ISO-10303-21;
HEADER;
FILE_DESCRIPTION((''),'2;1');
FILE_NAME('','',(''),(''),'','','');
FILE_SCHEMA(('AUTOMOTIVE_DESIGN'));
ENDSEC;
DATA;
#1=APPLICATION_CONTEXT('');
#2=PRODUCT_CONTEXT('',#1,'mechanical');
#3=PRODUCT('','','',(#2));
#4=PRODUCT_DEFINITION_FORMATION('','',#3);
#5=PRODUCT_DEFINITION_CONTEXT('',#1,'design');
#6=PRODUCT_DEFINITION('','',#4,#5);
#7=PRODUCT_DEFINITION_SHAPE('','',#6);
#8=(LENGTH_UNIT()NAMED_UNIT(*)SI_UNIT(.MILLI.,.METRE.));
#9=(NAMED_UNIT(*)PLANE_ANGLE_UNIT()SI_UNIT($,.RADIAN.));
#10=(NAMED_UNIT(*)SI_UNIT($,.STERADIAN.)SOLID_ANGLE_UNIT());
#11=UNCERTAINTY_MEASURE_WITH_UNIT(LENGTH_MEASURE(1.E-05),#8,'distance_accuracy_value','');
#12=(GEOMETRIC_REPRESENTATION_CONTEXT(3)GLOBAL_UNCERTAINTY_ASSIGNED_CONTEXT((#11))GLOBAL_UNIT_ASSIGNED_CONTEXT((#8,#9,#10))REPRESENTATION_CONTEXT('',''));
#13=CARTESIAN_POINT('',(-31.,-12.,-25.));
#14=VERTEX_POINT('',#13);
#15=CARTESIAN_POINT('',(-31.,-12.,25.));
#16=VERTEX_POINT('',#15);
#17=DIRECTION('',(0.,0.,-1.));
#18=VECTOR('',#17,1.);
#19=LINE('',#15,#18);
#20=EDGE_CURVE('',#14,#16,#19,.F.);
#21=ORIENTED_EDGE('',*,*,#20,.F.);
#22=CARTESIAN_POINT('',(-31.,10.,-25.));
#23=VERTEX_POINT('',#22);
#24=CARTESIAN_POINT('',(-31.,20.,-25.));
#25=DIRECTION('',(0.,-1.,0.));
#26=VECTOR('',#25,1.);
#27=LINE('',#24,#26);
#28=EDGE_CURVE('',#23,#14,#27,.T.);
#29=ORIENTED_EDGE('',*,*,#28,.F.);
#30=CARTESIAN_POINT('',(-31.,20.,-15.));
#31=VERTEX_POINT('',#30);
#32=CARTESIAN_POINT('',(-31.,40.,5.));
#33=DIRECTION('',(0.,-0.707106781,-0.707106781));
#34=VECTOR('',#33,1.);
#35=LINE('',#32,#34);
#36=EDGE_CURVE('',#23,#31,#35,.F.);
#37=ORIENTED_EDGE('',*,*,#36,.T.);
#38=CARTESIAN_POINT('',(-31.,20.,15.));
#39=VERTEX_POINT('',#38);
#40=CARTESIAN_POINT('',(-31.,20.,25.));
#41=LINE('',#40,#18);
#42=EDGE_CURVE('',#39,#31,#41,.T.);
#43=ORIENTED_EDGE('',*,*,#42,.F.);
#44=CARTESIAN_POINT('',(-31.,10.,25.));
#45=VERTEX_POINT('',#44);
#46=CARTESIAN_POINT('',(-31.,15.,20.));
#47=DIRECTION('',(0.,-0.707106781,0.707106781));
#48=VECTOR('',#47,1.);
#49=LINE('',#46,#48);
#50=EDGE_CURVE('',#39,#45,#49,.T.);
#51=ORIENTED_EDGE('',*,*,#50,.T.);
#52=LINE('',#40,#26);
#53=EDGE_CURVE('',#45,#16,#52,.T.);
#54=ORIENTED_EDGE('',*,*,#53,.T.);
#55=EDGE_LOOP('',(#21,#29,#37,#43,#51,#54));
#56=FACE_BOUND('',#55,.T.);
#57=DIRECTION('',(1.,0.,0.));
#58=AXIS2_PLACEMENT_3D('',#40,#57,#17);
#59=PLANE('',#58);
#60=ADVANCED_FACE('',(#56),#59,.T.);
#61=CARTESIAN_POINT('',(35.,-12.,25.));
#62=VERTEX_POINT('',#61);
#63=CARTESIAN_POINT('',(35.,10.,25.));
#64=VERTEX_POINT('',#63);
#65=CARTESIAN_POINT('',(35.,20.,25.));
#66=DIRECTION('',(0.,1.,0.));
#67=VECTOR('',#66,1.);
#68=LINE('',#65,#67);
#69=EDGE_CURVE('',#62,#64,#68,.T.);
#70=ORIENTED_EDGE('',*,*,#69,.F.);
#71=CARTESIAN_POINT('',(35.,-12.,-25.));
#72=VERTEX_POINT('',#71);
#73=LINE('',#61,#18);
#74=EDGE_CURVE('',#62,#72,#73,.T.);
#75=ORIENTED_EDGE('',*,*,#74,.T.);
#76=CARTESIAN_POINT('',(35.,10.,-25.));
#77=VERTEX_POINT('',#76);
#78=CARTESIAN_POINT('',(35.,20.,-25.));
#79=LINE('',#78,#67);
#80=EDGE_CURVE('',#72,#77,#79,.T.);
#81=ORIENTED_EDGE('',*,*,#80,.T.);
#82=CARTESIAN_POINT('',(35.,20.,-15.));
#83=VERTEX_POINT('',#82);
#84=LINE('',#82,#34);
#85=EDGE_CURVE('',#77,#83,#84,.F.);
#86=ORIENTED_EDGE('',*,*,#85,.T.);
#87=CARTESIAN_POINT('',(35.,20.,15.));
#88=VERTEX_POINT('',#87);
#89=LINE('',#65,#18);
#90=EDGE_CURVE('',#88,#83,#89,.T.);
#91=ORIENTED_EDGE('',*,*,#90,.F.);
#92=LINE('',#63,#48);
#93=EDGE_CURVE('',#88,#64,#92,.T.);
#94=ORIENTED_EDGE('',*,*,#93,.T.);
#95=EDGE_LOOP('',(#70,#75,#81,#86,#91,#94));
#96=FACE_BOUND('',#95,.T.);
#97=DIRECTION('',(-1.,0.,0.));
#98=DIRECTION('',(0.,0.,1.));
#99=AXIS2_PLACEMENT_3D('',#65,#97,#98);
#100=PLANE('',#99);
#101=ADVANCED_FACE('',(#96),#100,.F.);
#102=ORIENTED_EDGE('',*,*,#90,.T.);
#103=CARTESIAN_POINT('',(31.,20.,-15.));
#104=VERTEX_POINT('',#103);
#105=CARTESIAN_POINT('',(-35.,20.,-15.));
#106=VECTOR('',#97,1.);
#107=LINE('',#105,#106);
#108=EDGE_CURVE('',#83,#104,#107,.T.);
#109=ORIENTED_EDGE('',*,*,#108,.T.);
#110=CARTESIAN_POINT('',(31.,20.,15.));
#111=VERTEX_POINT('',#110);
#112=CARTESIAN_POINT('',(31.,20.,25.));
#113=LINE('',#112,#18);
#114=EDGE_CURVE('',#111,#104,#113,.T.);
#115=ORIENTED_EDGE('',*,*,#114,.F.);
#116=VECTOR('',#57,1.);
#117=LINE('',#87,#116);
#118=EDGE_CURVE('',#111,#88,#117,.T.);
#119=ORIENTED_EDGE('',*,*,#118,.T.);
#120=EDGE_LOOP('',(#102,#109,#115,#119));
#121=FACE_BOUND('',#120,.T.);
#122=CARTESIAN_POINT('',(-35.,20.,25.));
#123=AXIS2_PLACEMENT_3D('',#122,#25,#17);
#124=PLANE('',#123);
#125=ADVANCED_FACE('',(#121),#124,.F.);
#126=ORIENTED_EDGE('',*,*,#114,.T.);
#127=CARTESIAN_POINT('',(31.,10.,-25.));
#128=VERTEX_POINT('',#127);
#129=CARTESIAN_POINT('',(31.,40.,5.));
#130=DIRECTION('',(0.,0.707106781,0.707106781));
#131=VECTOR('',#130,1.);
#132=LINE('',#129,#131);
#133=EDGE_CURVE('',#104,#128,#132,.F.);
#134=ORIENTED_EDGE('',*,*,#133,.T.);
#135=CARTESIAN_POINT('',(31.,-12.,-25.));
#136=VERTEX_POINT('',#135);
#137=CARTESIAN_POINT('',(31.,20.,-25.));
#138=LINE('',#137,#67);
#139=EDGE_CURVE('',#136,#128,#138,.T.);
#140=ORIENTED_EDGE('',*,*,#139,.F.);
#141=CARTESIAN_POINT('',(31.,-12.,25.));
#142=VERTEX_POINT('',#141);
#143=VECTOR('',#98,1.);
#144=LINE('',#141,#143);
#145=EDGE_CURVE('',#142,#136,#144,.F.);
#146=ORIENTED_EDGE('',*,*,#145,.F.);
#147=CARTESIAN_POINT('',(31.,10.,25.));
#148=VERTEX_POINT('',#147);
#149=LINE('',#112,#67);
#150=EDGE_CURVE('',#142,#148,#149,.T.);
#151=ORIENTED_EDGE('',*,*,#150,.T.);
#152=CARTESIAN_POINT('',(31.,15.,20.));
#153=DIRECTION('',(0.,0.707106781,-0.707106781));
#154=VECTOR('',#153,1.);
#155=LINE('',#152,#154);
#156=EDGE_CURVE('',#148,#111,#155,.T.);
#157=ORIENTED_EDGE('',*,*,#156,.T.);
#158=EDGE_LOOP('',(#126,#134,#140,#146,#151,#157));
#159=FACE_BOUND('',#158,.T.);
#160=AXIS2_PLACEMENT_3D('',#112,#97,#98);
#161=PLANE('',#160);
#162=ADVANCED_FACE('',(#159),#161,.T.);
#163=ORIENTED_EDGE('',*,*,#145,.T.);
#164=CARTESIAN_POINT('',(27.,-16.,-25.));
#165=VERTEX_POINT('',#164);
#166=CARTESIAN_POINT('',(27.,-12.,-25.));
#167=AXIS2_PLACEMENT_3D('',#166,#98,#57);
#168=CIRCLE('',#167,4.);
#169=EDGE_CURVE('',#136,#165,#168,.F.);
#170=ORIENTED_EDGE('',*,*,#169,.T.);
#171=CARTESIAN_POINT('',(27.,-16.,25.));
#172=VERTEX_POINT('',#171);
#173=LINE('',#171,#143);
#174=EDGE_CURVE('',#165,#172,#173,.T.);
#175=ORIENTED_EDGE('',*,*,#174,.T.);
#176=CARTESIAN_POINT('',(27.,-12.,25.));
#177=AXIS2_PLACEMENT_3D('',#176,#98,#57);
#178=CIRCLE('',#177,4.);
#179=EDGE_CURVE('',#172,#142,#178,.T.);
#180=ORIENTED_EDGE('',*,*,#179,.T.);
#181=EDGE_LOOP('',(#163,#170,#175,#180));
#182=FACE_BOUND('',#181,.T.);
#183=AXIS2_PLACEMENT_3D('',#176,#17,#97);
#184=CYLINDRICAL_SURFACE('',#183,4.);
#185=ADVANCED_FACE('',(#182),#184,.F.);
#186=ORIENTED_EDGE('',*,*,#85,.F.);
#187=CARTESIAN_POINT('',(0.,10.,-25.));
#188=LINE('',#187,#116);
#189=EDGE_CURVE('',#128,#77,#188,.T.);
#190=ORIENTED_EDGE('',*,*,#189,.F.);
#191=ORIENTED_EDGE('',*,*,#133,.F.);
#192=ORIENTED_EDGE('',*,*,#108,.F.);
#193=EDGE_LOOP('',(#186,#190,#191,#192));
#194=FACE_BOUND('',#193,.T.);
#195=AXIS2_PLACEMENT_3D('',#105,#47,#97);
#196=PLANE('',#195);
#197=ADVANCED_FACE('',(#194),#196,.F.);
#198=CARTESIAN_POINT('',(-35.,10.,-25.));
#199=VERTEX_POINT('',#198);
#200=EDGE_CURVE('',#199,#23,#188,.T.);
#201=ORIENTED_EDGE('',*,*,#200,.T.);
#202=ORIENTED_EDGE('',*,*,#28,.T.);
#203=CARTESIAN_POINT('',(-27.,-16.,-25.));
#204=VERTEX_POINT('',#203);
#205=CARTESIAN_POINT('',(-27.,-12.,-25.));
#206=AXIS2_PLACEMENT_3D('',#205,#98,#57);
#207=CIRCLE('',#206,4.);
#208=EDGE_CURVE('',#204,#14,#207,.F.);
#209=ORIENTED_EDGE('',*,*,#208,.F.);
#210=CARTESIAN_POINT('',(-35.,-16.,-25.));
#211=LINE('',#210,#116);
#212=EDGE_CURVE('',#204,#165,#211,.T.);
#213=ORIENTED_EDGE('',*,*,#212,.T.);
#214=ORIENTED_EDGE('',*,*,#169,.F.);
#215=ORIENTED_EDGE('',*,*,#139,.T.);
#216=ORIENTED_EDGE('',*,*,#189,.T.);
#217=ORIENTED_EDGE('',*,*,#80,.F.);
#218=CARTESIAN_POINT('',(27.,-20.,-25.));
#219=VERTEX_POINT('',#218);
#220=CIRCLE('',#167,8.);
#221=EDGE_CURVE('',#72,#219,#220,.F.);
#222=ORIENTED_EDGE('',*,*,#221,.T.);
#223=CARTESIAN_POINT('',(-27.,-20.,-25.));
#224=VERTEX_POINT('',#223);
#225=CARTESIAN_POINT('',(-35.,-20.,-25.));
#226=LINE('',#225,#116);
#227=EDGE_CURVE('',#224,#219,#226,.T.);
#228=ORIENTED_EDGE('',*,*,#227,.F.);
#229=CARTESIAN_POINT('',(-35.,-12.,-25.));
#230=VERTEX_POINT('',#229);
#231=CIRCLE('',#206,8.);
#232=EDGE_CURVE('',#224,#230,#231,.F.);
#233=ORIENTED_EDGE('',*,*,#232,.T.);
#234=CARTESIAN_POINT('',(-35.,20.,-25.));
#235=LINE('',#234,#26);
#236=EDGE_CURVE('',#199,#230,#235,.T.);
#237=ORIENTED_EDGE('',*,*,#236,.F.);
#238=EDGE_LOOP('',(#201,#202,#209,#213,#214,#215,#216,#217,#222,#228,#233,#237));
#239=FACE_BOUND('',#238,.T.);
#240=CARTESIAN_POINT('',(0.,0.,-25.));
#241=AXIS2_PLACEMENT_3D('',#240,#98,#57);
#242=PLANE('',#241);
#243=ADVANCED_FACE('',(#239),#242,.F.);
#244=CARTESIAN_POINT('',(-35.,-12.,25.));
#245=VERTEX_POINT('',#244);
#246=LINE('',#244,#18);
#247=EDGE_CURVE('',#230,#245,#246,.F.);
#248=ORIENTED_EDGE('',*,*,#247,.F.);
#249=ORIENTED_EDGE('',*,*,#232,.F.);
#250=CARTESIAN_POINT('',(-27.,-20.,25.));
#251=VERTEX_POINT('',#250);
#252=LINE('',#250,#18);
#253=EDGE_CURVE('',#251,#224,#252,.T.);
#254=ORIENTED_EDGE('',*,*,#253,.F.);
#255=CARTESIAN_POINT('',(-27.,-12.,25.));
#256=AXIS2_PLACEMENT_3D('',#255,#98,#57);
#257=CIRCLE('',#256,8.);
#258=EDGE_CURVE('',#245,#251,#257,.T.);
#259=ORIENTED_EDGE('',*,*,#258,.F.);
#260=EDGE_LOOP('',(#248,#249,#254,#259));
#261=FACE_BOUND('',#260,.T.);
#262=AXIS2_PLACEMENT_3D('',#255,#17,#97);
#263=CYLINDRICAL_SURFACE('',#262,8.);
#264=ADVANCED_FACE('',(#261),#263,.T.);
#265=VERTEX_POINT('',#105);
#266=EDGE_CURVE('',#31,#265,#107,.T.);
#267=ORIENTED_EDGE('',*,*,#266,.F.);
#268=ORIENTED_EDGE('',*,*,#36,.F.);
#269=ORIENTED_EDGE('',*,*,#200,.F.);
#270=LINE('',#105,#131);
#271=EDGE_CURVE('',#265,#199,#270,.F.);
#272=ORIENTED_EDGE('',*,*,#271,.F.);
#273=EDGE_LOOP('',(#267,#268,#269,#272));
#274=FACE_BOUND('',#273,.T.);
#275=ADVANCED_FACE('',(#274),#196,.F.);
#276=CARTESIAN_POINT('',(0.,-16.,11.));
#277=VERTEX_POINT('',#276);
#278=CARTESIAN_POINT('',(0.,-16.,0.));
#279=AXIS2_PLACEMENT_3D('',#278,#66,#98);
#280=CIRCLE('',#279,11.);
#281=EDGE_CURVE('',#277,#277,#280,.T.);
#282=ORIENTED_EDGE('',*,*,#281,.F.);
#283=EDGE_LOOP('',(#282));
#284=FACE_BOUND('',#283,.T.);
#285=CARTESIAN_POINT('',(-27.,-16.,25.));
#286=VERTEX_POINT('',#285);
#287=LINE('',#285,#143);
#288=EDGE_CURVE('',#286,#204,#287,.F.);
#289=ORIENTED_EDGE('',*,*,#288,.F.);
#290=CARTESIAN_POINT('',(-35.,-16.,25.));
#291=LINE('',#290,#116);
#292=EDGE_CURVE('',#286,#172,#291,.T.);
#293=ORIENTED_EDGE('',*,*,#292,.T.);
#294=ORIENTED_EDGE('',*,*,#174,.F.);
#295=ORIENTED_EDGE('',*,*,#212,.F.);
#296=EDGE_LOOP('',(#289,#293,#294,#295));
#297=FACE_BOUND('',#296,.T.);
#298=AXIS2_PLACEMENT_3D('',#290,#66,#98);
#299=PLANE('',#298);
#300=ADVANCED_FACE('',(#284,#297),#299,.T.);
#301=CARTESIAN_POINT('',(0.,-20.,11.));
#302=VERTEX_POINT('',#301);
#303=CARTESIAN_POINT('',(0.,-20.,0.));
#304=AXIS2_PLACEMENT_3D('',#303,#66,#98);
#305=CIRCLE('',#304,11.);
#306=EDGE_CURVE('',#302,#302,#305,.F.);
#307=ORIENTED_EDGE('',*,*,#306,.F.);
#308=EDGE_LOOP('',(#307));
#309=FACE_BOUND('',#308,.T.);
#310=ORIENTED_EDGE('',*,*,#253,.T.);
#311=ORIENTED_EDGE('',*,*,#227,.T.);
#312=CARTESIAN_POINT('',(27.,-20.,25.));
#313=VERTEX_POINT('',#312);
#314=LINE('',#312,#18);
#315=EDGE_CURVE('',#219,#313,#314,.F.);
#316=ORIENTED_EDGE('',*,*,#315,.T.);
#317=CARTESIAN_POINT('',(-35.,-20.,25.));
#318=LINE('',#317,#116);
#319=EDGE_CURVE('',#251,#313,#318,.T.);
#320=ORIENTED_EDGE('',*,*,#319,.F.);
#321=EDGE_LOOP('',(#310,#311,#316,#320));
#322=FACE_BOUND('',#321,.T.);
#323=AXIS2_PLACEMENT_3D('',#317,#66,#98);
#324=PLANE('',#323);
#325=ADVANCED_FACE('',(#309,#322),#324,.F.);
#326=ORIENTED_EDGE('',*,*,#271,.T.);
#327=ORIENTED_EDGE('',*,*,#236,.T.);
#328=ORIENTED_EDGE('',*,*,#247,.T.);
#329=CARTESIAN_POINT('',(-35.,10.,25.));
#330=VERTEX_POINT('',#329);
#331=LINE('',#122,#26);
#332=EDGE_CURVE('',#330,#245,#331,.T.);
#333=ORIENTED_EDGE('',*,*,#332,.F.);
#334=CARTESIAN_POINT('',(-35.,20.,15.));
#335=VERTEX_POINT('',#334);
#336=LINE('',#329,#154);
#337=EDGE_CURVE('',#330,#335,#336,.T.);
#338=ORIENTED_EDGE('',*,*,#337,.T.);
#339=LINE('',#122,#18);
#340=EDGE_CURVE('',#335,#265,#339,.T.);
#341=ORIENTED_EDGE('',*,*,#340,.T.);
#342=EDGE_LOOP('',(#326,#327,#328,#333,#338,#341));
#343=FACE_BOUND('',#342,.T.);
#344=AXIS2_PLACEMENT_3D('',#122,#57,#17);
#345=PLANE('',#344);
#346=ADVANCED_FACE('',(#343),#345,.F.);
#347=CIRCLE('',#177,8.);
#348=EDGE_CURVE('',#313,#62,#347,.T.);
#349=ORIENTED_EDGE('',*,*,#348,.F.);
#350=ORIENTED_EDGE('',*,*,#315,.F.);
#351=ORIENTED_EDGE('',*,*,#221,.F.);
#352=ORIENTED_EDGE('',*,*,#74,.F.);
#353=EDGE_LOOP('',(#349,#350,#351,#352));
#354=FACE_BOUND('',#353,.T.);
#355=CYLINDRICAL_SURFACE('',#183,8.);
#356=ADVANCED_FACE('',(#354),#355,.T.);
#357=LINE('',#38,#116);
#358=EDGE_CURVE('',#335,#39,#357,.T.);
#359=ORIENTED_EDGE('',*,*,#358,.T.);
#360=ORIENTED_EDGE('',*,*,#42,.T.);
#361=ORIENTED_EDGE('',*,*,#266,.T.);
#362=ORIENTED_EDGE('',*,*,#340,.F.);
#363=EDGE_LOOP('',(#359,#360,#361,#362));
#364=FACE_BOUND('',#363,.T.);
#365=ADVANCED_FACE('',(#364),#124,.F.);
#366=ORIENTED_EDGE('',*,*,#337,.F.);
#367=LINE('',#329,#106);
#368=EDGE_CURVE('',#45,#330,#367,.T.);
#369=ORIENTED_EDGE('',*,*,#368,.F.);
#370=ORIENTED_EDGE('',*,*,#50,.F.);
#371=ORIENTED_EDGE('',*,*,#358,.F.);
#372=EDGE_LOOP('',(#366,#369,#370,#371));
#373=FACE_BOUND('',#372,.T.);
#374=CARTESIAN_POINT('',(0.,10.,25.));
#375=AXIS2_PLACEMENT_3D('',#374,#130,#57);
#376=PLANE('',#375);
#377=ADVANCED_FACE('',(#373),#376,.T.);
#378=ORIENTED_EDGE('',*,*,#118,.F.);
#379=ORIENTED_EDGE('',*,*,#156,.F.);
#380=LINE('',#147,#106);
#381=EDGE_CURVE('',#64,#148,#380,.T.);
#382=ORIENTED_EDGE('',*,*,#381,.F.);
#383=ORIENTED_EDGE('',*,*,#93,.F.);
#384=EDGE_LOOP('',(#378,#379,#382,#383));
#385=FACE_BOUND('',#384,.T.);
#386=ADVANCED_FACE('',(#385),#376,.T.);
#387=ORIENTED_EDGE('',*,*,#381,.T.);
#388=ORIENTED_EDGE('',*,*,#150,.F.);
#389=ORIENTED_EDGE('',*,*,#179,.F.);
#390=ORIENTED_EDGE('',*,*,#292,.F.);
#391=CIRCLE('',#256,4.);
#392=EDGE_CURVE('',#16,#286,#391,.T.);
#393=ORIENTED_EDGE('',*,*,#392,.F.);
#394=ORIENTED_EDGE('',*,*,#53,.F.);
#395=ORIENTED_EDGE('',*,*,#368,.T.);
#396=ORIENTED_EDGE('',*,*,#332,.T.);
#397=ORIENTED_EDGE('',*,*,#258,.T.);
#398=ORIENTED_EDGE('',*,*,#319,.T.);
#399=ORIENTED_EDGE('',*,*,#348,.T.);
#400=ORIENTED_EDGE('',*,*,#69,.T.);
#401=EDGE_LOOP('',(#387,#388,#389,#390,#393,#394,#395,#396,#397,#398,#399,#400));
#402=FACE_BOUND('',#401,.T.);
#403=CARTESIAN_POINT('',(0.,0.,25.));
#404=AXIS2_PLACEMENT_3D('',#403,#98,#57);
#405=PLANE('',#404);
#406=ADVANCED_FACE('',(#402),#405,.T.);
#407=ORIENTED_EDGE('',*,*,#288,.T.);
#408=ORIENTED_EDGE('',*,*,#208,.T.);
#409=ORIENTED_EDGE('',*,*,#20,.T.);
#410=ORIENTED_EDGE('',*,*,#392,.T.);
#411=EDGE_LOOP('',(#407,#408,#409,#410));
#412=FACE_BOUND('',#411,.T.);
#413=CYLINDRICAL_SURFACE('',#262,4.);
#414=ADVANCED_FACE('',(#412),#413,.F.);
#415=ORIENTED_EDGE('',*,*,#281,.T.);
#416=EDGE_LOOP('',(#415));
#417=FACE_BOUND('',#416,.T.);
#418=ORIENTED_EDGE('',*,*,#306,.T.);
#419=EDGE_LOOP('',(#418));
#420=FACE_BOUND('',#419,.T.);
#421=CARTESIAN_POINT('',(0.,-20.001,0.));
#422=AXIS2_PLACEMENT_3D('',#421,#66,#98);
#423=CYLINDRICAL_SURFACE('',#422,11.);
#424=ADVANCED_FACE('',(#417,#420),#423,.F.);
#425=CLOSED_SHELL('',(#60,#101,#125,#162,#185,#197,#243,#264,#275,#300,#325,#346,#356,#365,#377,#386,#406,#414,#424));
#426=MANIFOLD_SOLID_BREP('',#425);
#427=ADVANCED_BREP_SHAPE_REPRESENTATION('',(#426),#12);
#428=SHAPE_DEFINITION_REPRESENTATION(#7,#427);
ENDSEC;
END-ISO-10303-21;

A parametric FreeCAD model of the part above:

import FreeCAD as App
import Part
import Sketcher

V = App.Vector


def edges_at(feature, points):
    """Names of the edges that pass closest to the given points."""
    edges = feature.Shape.Edges
    near = lambda p: min(range(len(edges)), key=lambda i: edges[i].distToShape(Part.Vertex(*p))[0])
    return sorted({f"Edge{near(p) + 1}" for p in points})


def faces_at(feature, points):
    """Names of the faces that lie closest to the given points."""
    faces = feature.Shape.Faces
    near = lambda p: min(range(len(faces)), key=lambda i: faces[i].distToShape(Part.Vertex(*p))[0])
    return sorted({f"Face{near(p) + 1}" for p in points})

doc = App.newDocument("Part")
body = doc.addObject("PartDesign::Body", "Body")

sketch1 = body.newObject("Sketcher::SketchObject", "Sketch")
sketch1.AttachmentSupport = (doc.getObject("XY_Plane"), [""])
sketch1.MapMode = "FlatFace"
sketch1.addGeometry([
    Part.LineSegment(V(-35, 20, 0), V(-35, -20, 0)),
    Part.LineSegment(V(-35, -20, 0), V(35, -20, 0)),
    Part.LineSegment(V(35, -20, 0), V(35, 20, 0)),
    Part.LineSegment(V(35, 20, 0), V(-35, 20, 0)),
], False)
sketch1.addConstraint([
    Sketcher.Constraint("Coincident", 0, 2, 1, 1),
    Sketcher.Constraint("Coincident", 1, 2, 2, 1),
    Sketcher.Constraint("Coincident", 2, 2, 3, 1),
    Sketcher.Constraint("Coincident", 3, 2, 0, 1),
    Sketcher.Constraint("Vertical", 0),
    Sketcher.Constraint("Horizontal", 1),
    Sketcher.Constraint("Vertical", 2),
    Sketcher.Constraint("Horizontal", 3),
    Sketcher.Constraint("Symmetric", 0, 2, 2, 2, -1, 1),
    Sketcher.Constraint("DistanceX", 1, 1, 1, 2, 70.0),
    Sketcher.Constraint("DistanceY", 0, 2, 0, 1, 40.0),
])
pad1 = body.newObject("PartDesign::Pad", "Pad")
pad1.Profile = sketch1
pad1.Length = 50
pad1.Midplane = True
doc.recompute()

fillet = body.newObject("PartDesign::Fillet", "Fillet")
fillet.Base = (pad1, edges_at(pad1, [(35, -20, 0), (-35, -20, 0)]))
fillet.Radius = 8
doc.recompute()

thickness = body.newObject("PartDesign::Thickness", "Thickness")
thickness.Base = (fillet, faces_at(fillet, [(0, 0, 25), (0, 0, -25), (0, 20, 0)]))
thickness.Value = 4
thickness.Reversed = True
thickness.Join = "Intersection"
doc.recompute()

chamfer = body.newObject("PartDesign::Chamfer", "Chamfer")
chamfer.Base = (thickness, edges_at(thickness, [
    (-33, 20, -25),
    (-33, 20, 25),
    (33, 20, -25),
    (33, 20, 25),
]))
chamfer.Size = 10

sketch2 = body.newObject("Sketcher::SketchObject", "Sketch001")
sketch2.AttachmentSupport = (doc.getObject("XZ_Plane"), [""])
sketch2.MapMode = "FlatFace"
sketch2.AttachmentOffset = App.Placement(V(0, 0, 16), App.Rotation())
sketch2.addGeometry(Part.Circle(V(0, 0, 0), V(0, 0, 1), 11), False)
sketch2.addConstraint([
    Sketcher.Constraint("Coincident", 0, 3, -1, 1),
    Sketcher.Constraint("Diameter", 0, 22.0),
])
pocket1 = body.newObject("PartDesign::Pocket", "Pocket")
pocket1.Profile = sketch2
pocket1.Type = "UpToFirst"
pocket1.Reversed = True

doc.recompute()
